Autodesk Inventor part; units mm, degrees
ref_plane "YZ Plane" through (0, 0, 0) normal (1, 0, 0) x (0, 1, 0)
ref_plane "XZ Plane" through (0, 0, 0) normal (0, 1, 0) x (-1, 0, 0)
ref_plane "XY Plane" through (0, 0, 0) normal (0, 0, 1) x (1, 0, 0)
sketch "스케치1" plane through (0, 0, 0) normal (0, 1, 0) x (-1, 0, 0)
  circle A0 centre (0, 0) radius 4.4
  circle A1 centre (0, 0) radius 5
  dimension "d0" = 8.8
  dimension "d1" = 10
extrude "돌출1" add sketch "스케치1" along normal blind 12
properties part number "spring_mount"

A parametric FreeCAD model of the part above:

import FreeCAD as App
import Part
import Sketcher
from FreeCAD import Vector

doc = App.newDocument("Part")
body = doc.addObject("PartDesign::Body", "Body")

sketch1 = doc.addObject("Sketcher::SketchObject", "Sketch")
body.addObject(sketch1)
sketch1.AttachmentSupport = (doc.XZ_Plane, [""])
sketch1.MapMode = "FlatFace"
sketch1.addGeometry([
    Part.Circle(Vector(0, 0, 0), Vector(0, 0, 1), 5),
    Part.Circle(Vector(0, 0, 0), Vector(0, 0, 1), 4.4),
], False)
sketch1.addConstraint([
    Sketcher.Constraint("Coincident", 0, 3, -1, 1),
    Sketcher.Constraint("Coincident", 1, 3, -1, 1),
    Sketcher.Constraint("Diameter", 0, 10.0),
    Sketcher.Constraint("Diameter", 1, 8.8),
])
pad1 = doc.addObject("PartDesign::Pad", "Pad")
body.addObject(pad1)
pad1.Profile = sketch1
pad1.Length = 12
pad1.Reversed = True

doc.recompute()
